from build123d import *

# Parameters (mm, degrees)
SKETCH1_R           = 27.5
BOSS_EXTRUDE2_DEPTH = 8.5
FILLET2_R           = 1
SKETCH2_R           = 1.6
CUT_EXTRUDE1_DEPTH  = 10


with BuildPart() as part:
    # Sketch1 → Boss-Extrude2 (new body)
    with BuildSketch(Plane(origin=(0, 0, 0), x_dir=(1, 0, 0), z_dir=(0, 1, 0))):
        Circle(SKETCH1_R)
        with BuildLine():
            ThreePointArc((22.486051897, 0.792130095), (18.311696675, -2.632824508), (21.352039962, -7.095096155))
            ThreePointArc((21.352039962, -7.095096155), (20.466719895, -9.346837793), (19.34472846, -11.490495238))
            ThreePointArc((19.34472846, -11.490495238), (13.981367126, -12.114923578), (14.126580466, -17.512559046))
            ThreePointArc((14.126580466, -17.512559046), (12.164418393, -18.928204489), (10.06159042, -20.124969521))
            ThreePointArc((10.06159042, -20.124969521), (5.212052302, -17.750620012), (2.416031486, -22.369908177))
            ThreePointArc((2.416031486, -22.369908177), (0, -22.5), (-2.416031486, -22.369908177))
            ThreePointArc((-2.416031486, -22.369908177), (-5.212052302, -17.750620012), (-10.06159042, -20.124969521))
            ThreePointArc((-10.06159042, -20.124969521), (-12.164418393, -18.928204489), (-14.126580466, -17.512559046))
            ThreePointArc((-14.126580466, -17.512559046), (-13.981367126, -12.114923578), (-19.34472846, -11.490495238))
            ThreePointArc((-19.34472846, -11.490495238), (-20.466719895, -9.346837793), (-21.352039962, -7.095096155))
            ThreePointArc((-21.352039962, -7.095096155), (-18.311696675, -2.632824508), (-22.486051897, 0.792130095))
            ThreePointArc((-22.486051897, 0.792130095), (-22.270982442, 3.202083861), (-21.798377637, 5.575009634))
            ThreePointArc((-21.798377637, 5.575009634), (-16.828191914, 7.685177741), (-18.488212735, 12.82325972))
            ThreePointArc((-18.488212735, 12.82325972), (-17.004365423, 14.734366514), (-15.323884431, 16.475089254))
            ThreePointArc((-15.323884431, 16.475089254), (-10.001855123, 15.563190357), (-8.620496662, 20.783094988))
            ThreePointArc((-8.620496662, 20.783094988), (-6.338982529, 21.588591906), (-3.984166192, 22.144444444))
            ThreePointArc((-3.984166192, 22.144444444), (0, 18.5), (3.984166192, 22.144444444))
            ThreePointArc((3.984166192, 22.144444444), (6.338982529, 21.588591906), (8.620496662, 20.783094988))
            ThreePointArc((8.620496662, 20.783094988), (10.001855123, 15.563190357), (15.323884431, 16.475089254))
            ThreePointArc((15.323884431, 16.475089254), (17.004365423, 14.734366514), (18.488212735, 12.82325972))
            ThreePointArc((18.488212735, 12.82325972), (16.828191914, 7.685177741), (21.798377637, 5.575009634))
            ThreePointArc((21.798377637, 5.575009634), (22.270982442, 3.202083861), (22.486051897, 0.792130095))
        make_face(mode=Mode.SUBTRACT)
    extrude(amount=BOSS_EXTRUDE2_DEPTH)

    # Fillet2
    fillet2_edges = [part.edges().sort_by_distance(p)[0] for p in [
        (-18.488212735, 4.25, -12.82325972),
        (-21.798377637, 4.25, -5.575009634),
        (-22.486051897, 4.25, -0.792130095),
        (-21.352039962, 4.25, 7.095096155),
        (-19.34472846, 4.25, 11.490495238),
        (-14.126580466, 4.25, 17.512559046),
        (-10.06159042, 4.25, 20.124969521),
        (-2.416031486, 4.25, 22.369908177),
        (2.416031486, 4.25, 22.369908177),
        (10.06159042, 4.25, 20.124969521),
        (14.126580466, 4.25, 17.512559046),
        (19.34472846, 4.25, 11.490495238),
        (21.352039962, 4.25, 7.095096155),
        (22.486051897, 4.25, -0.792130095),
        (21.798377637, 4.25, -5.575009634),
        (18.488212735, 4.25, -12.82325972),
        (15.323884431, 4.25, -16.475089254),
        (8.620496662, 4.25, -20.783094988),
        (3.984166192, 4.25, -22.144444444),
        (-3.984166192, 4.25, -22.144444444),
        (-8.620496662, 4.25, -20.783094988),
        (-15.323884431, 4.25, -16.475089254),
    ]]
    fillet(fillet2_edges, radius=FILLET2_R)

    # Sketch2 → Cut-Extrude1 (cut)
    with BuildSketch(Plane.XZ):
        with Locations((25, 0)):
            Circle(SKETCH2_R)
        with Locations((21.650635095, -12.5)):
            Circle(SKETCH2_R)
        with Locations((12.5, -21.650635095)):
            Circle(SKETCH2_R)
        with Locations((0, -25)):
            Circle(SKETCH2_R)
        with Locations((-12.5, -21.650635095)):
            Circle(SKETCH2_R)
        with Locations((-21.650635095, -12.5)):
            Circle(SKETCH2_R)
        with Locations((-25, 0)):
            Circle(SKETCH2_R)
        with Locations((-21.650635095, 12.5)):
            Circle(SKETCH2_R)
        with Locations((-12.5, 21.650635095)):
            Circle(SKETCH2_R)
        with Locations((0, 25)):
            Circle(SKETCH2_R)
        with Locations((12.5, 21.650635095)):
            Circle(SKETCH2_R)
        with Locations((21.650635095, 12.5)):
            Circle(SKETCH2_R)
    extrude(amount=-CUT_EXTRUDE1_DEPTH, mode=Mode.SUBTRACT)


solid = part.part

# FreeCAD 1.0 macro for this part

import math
import FreeCAD as App
import Part
import Sketcher
Q = App.Units.Quantity


def edges_at(feature, points):
    """Names of the edges that pass closest to the given points."""
    edges = feature.Shape.Edges
    near = lambda p: min(range(len(edges)), key=lambda i: edges[i].distToShape(Part.Vertex(*p))[0])
    return sorted({f"Edge{near(p) + 1}" for p in points})

doc = App.newDocument("Part")
body = doc.addObject("PartDesign::Body", "Body")

# Sketch on XZ plane
sketch1 = doc.addObject("Sketcher::SketchObject", "Sketch")
body.addObject(sketch1)
sketch1.AttachmentSupport = (doc.XZ_Plane, [""])
sketch1.MapMode = "FlatFace"
sketch1.addGeometry(Part.Circle(App.Vector(0, 0, 0), App.Vector(0, 0, 1), 27.5), False)
sketch1.addGeometry(Part.ArcOfCircle(Part.Circle(App.Vector(0, 0, 0), App.Vector(0, 0, 1), 22.5), math.radians(-14.346077), math.radians(-2.01756)), False)
sketch1.addGeometry(Part.ArcOfCircle(Part.Circle(App.Vector(22.270982, 3.202084, 0), App.Vector(0, 0, 1), 4), math.radians(103.281507), math.radians(273.082129)), False)
sketch1.addGeometry(Part.ArcOfCircle(Part.Circle(App.Vector(0, 0, 0), App.Vector(0, 0, 1), 22.5), math.radians(18.381196), math.radians(30.709713)), False)
sketch1.addGeometry(Part.ArcOfCircle(Part.Circle(App.Vector(17.004365, 14.734367, 0), App.Vector(0, 0, 1), 4), math.radians(136.00878), math.radians(305.809402)), False)
sketch1.addGeometry(Part.ArcOfCircle(Part.Circle(App.Vector(0, 0, 0), App.Vector(0, 0, 1), 22.5), math.radians(51.108469), math.radians(63.436986)), False)
sketch1.addGeometry(Part.ArcOfCircle(Part.Circle(App.Vector(6.338983, 21.588592, 0), App.Vector(0, 0, 1), 4), math.radians(168.736053), math.radians(338.536675)), False)
sketch1.addGeometry(Part.ArcOfCircle(Part.Circle(App.Vector(0, 0, 0), App.Vector(0, 0, 1), 22.5), math.radians(83.835741), math.radians(96.164259)), False)
sketch1.addGeometry(Part.ArcOfCircle(Part.Circle(App.Vector(-6.338983, 21.588592, 0), App.Vector(0, 0, 1), 4), math.radians(-158.536675), math.radians(11.263947)), False)
sketch1.addGeometry(Part.ArcOfCircle(Part.Circle(App.Vector(0, 0, 0), App.Vector(0, 0, 1), 22.5), math.radians(116.563014), math.radians(128.891531)), False)
sketch1.addGeometry(Part.ArcOfCircle(Part.Circle(App.Vector(-17.004365, 14.734367, 0), App.Vector(0, 0, 1), 4), math.radians(-125.809402), math.radians(43.99122)), False)
sketch1.addGeometry(Part.ArcOfCircle(Part.Circle(App.Vector(0, 0, 0), App.Vector(0, 0, 1), 22.5), math.radians(149.290287), math.radians(161.618804)), False)
sketch1.addGeometry(Part.ArcOfCircle(Part.Circle(App.Vector(-22.270982, 3.202084, 0), App.Vector(0, 0, 1), 4), math.radians(-93.082129), math.radians(76.718493)), False)
sketch1.addGeometry(Part.ArcOfCircle(Part.Circle(App.Vector(0, 0, 0), App.Vector(0, 0, 1), 22.5), math.radians(-177.98244), math.radians(-165.653923)), False)
sketch1.addGeometry(Part.ArcOfCircle(Part.Circle(App.Vector(-20.46672, -9.346838, 0), App.Vector(0, 0, 1), 4), math.radians(-60.354857), math.radians(109.445766)), False)
sketch1.addGeometry(Part.ArcOfCircle(Part.Circle(App.Vector(0, 0, 0), App.Vector(0, 0, 1), 22.5), math.radians(-145.255168), math.radians(-132.926651)), False)
sketch1.addGeometry(Part.ArcOfCircle(Part.Circle(App.Vector(-12.164418, -18.928204, 0), App.Vector(0, 0, 1), 4), math.radians(-27.627584), math.radians(142.173038)), False)
sketch1.addGeometry(Part.ArcOfCircle(Part.Circle(App.Vector(0, 0, 0), App.Vector(0, 0, 1), 22.5), math.radians(-112.527895), math.radians(-100.199378)), False)
sketch1.addGeometry(Part.ArcOfCircle(Part.Circle(App.Vector(0, -22.5, 0), App.Vector(0, 0, 1), 4), math.radians(5.099689), math.radians(174.900311)), False)
sketch1.addGeometry(Part.ArcOfCircle(Part.Circle(App.Vector(0, 0, 0), App.Vector(0, 0, 1), 22.5), math.radians(-79.800622), math.radians(-67.472105)), False)
sketch1.addGeometry(Part.ArcOfCircle(Part.Circle(App.Vector(12.164418, -18.928204, 0), App.Vector(0, 0, 1), 4), math.radians(37.826962), math.radians(207.627584)), False)
sketch1.addGeometry(Part.ArcOfCircle(Part.Circle(App.Vector(0, 0, 0), App.Vector(0, 0, 1), 22.5), math.radians(-47.073349), math.radians(-34.744832)), False)
sketch1.addGeometry(Part.ArcOfCircle(Part.Circle(App.Vector(20.46672, -9.346838, 0), App.Vector(0, 0, 1), 4), math.radians(70.554234), math.radians(240.354857)), False)
sketch1.addConstraint(Sketcher.Constraint("Coincident", 1, 2, 2, 2))
sketch1.addConstraint(Sketcher.Constraint("Coincident", 2, 1, 3, 1))
sketch1.addConstraint(Sketcher.Constraint("Coincident", 3, 2, 4, 2))
sketch1.addConstraint(Sketcher.Constraint("Coincident", 4, 1, 5, 1))
sketch1.addConstraint(Sketcher.Constraint("Coincident", 5, 2, 6, 2))
sketch1.addConstraint(Sketcher.Constraint("Coincident", 6, 1, 7, 1))
sketch1.addConstraint(Sketcher.Constraint("Coincident", 7, 2, 8, 2))
sketch1.addConstraint(Sketcher.Constraint("Coincident", 8, 1, 9, 1))
sketch1.addConstraint(Sketcher.Constraint("Coincident", 9, 2, 10, 2))
sketch1.addConstraint(Sketcher.Constraint("Coincident", 10, 1, 11, 1))
sketch1.addConstraint(Sketcher.Constraint("Coincident", 11, 2, 12, 2))
sketch1.addConstraint(Sketcher.Constraint("Coincident", 12, 1, 13, 1))
sketch1.addConstraint(Sketcher.Constraint("Coincident", 13, 2, 14, 2))
sketch1.addConstraint(Sketcher.Constraint("Coincident", 14, 1, 15, 1))
sketch1.addConstraint(Sketcher.Constraint("Coincident", 15, 2, 16, 2))
sketch1.addConstraint(Sketcher.Constraint("Coincident", 16, 1, 17, 1))
sketch1.addConstraint(Sketcher.Constraint("Coincident", 17, 2, 18, 2))
sketch1.addConstraint(Sketcher.Constraint("Coincident", 18, 1, 19, 1))
sketch1.addConstraint(Sketcher.Constraint("Coincident", 19, 2, 20, 2))
sketch1.addConstraint(Sketcher.Constraint("Coincident", 20, 1, 21, 1))
sketch1.addConstraint(Sketcher.Constraint("Coincident", 21, 2, 22, 2))
sketch1.addConstraint(Sketcher.Constraint("Coincident", 22, 1, 1, 1))
sketch1.addConstraint(Sketcher.Constraint("Coincident", 0, 3, -1, 1))
sketch1.addConstraint(Sketcher.Constraint("Coincident", 1, 3, -1, 1))
sketch1.addConstraint(Sketcher.Constraint("Coincident", 3, 3, -1, 1))
sketch1.addConstraint(Sketcher.Constraint("Coincident", 5, 3, -1, 1))
sketch1.addConstraint(Sketcher.Constraint("Coincident", 7, 3, -1, 1))
sketch1.addConstraint(Sketcher.Constraint("Coincident", 9, 3, -1, 1))
sketch1.addConstraint(Sketcher.Constraint("Coincident", 11, 3, -1, 1))
sketch1.addConstraint(Sketcher.Constraint("Coincident", 13, 3, -1, 1))
sketch1.addConstraint(Sketcher.Constraint("Coincident", 15, 3, -1, 1))
sketch1.addConstraint(Sketcher.Constraint("Coincident", 17, 3, -1, 1))
sketch1.addConstraint(Sketcher.Constraint("Coincident", 19, 3, -1, 1))
sketch1.addConstraint(Sketcher.Constraint("Coincident", 21, 3, -1, 1))
sketch1.addConstraint(Sketcher.Constraint("Equal", 1, 3))
sketch1.addConstraint(Sketcher.Constraint("Equal", 2, 4))
sketch1.addConstraint(Sketcher.Constraint("Equal", 3, 5))
sketch1.addConstraint(Sketcher.Constraint("Equal", 4, 6))
sketch1.addConstraint(Sketcher.Constraint("Equal", 5, 7))
sketch1.addConstraint(Sketcher.Constraint("Equal", 6, 8))
sketch1.addConstraint(Sketcher.Constraint("Equal", 7, 9))
sketch1.addConstraint(Sketcher.Constraint("Equal", 8, 10))
sketch1.addConstraint(Sketcher.Constraint("Equal", 9, 11))
sketch1.addConstraint(Sketcher.Constraint("Equal", 10, 12))
sketch1.addConstraint(Sketcher.Constraint("Equal", 11, 13))
sketch1.addConstraint(Sketcher.Constraint("Equal", 12, 14))
sketch1.addConstraint(Sketcher.Constraint("Equal", 13, 15))
sketch1.addConstraint(Sketcher.Constraint("Equal", 14, 16))
sketch1.addConstraint(Sketcher.Constraint("Equal", 15, 17))
sketch1.addConstraint(Sketcher.Constraint("Equal", 16, 18))
sketch1.addConstraint(Sketcher.Constraint("Equal", 17, 19))
sketch1.addConstraint(Sketcher.Constraint("Equal", 18, 20))
sketch1.addConstraint(Sketcher.Constraint("Equal", 19, 21))
sketch1.addConstraint(Sketcher.Constraint("Equal", 20, 22))
sketch1.addConstraint(Sketcher.Constraint("Symmetric", 6, 3, 8, 3, -2))
sketch1.addConstraint(Sketcher.Constraint("Symmetric", 4, 3, 10, 3, -2))
sketch1.addConstraint(Sketcher.Constraint("Symmetric", 2, 3, 12, 3, -2))
sketch1.addConstraint(Sketcher.Constraint("Symmetric", 16, 3, 20, 3, -2))
sketch1.addConstraint(Sketcher.Constraint("Symmetric", 14, 3, 22, 3, -2))
sketch1.addConstraint(Sketcher.Constraint("PointOnObject", 18, 3, -2))
sketch1.addConstraint(Sketcher.Constraint("Diameter", 0, Q("55 mm")))
sketch1.addConstraint(Sketcher.Constraint("Radius", 2, Q("4 mm")))
sketch1.addConstraint(Sketcher.Constraint("Radius", 1, Q("22.5 mm")))
sketch1.addConstraint(Sketcher.Constraint("DistanceY", 18, 3, -1, 1, Q("22.5 mm")))
sketch1.addConstraint(Sketcher.Constraint("DistanceX", 14, 3, 16, 3, Q("8.302302 mm")))
sketch1.addConstraint(Sketcher.Constraint("DistanceY", 2, 1, 3, 2, Q("4.395399 mm")))
sketch1.addConstraint(Sketcher.Constraint("DistanceX", 4, 1, 2, 3, Q("8.144402 mm")))
sketch1.addConstraint(Sketcher.Constraint("DistanceY", -1, 1, 6, 3, Q("21.588592 mm")))
sketch1.addConstraint(Sketcher.Constraint("DistanceX", 14, 3, -1, 1, Q("20.46672 mm")))
sketch1.addConstraint(Sketcher.Constraint("DistanceX", -1, 1, 1, 2, Q("22.486052 mm")))
sketch1.addConstraint(Sketcher.Constraint("DistanceX", -1, 1, 4, 1, Q("14.12658 mm")))
sketch1.addConstraint(Sketcher.Constraint("DistanceX", -1, 1, 5, 2, Q("10.06159 mm")))
sketch1.addConstraint(Sketcher.Constraint("DistanceY", 13, 2, -1, 1, Q("5.57501 mm")))
sketch1.addConstraint(Sketcher.Constraint("DistanceY", 15, 2, -1, 1, Q("16.475089 mm")))
pad1 = doc.addObject("PartDesign::Pad", "Pad")
body.addObject(pad1)
pad1.Profile = sketch1
pad1.Length = 8.5
pad1.Reversed = True
doc.recompute()

fillet = doc.addObject("PartDesign::Fillet", "Fillet")
body.addObject(fillet)
fillet.Base = (pad1, edges_at(pad1, [
    (-18.488, 4.25, -12.823),
    (-21.798, 4.25, -5.575),
    (-22.486, 4.25, -0.792),
    (-21.352, 4.25, 7.095),
    (-19.345, 4.25, 11.49),
    (-14.127, 4.25, 17.513),
    (-10.062, 4.25, 20.125),
    (-2.416, 4.25, 22.37),
    (2.416, 4.25, 22.37),
    (10.062, 4.25, 20.125),
    (14.127, 4.25, 17.513),
    (19.345, 4.25, 11.49),
    (21.352, 4.25, 7.095),
    (22.486, 4.25, -0.792),
    (21.798, 4.25, -5.575),
    (18.488, 4.25, -12.823),
    (15.324, 4.25, -16.475),
    (8.62, 4.25, -20.783),
    (3.984, 4.25, -22.144),
    (-3.984, 4.25, -22.144),
    (-8.62, 4.25, -20.783),
    (-15.324, 4.25, -16.475),
]))
fillet.Radius = 1

# Sketch on XZ plane
sketch2 = doc.addObject("Sketcher::SketchObject", "Sketch001")
body.addObject(sketch2)
sketch2.AttachmentSupport = (doc.XZ_Plane, [""])
sketch2.MapMode = "FlatFace"
sketch2.addGeometry(Part.Circle(App.Vector(25, 0, 0), App.Vector(0, 0, 1), 1.6), False)
sketch2.addGeometry(Part.Circle(App.Vector(21.650635, -12.5, 0), App.Vector(0, 0, 1), 1.6), False)
sketch2.addGeometry(Part.Circle(App.Vector(12.5, -21.650635, 0), App.Vector(0, 0, 1), 1.6), False)
sketch2.addGeometry(Part.Circle(App.Vector(0, -25, 0), App.Vector(0, 0, 1), 1.6), False)
sketch2.addGeometry(Part.Circle(App.Vector(-12.5, -21.650635, 0), App.Vector(0, 0, 1), 1.6), False)
sketch2.addGeometry(Part.Circle(App.Vector(-21.650635, -12.5, 0), App.Vector(0, 0, 1), 1.6), False)
sketch2.addGeometry(Part.Circle(App.Vector(-25, 0, 0), App.Vector(0, 0, 1), 1.6), False)
sketch2.addGeometry(Part.Circle(App.Vector(-21.650635, 12.5, 0), App.Vector(0, 0, 1), 1.6), False)
sketch2.addGeometry(Part.Circle(App.Vector(-12.5, 21.650635, 0), App.Vector(0, 0, 1), 1.6), False)
sketch2.addGeometry(Part.Circle(App.Vector(0, 25, 0), App.Vector(0, 0, 1), 1.6), False)
sketch2.addGeometry(Part.Circle(App.Vector(12.5, 21.650635, 0), App.Vector(0, 0, 1), 1.6), False)
sketch2.addGeometry(Part.Circle(App.Vector(21.650635, 12.5, 0), App.Vector(0, 0, 1), 1.6), False)
sketch2.addConstraint(Sketcher.Constraint("Equal", 0, 1))
sketch2.addConstraint(Sketcher.Constraint("Equal", 1, 2))
sketch2.addConstraint(Sketcher.Constraint("Equal", 2, 3))
sketch2.addConstraint(Sketcher.Constraint("Equal", 3, 4))
sketch2.addConstraint(Sketcher.Constraint("Equal", 4, 5))
sketch2.addConstraint(Sketcher.Constraint("Equal", 5, 6))
sketch2.addConstraint(Sketcher.Constraint("Equal", 6, 7))
sketch2.addConstraint(Sketcher.Constraint("Equal", 7, 8))
sketch2.addConstraint(Sketcher.Constraint("Equal", 8, 9))
sketch2.addConstraint(Sketcher.Constraint("Equal", 9, 10))
sketch2.addConstraint(Sketcher.Constraint("Equal", 10, 11))
sketch2.addConstraint(Sketcher.Constraint("Symmetric", 0, 3, 6, 3, -1, 1))
sketch2.addConstraint(Sketcher.Constraint("Symmetric", 1, 3, 7, 3, -1, 1))
sketch2.addConstraint(Sketcher.Constraint("Symmetric", 2, 3, 8, 3, -1, 1))
sketch2.addConstraint(Sketcher.Constraint("Symmetric", 3, 3, 9, 3, -1, 1))
sketch2.addConstraint(Sketcher.Constraint("Symmetric", 4, 3, 10, 3, -1, 1))
sketch2.addConstraint(Sketcher.Constraint("Symmetric", 5, 3, 11, 3, -1, 1))
sketch2.addConstraint(Sketcher.Constraint("Symmetric", 2, 3, 4, 3, -2))
sketch2.addConstraint(Sketcher.Constraint("Symmetric", 1, 3, 5, 3, -2))
sketch2.addConstraint(Sketcher.Constraint("PointOnObject", 0, 3, -1))
sketch2.addConstraint(Sketcher.Constraint("PointOnObject", 3, 3, -2))
sketch2.addConstraint(Sketcher.Constraint("Diameter", 0, Q("3.2 mm")))
sketch2.addConstraint(Sketcher.Constraint("DistanceX", -1, 1, 0, 3, Q("25 mm")))
sketch2.addConstraint(Sketcher.Constraint("DistanceY", 3, 3, -1, 1, Q("25 mm")))
sketch2.addConstraint(Sketcher.Constraint("DistanceX", 4, 3, 2, 3, Q("25 mm")))
sketch2.addConstraint(Sketcher.Constraint("DistanceY", 5, 3, 7, 3, Q("25 mm")))
sketch2.addConstraint(Sketcher.Constraint("DistanceX", 5, 3, 1, 3, Q("43.30127 mm")))
sketch2.addConstraint(Sketcher.Constraint("DistanceY", 4, 3, 8, 3, Q("43.30127 mm")))
pocket1 = doc.addObject("PartDesign::Pocket", "Pocket")
body.addObject(pocket1)
pocket1.Profile = sketch2
pocket1.Length = 10

doc.recompute()
